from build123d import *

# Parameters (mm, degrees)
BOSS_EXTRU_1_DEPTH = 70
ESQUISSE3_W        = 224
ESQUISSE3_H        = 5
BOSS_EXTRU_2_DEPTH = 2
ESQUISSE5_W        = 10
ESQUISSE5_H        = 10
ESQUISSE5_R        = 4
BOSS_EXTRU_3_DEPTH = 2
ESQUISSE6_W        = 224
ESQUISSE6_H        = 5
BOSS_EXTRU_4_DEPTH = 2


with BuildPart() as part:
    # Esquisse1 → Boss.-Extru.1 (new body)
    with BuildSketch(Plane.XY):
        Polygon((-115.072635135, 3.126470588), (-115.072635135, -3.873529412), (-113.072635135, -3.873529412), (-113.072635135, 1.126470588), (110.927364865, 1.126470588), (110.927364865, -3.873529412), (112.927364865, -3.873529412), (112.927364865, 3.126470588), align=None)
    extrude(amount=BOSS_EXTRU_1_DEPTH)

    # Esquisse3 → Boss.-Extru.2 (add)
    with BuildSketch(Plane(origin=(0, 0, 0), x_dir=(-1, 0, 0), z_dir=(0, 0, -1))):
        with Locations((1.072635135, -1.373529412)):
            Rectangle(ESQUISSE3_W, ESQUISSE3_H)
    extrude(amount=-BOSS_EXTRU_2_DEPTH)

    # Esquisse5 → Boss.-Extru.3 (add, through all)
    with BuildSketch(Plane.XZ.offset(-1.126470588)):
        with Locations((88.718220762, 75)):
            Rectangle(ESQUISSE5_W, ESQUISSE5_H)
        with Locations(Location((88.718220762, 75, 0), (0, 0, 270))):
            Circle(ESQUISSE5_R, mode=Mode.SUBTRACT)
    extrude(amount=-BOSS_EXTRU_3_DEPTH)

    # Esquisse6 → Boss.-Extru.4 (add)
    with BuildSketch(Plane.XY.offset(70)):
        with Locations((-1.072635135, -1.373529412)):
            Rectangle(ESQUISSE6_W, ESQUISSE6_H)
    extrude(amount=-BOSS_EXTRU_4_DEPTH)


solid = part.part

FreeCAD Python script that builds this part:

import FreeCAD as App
import Part
import Sketcher

V = App.Vector
Q = App.Units.Quantity

doc = App.newDocument("Part")
body = doc.addObject("PartDesign::Body", "Body")

# Sketch on XY plane
sketch1 = doc.addObject("Sketcher::SketchObject", "Sketch")
body.addObject(sketch1)
sketch1.AttachmentSupport = (doc.XY_Plane, [""])
sketch1.MapMode = "FlatFace"
sketch1.addGeometry([
    Part.LineSegment(V(-115.1, 3.1, 0), V(-115.1, -3.9, 0)),  # 0
    Part.LineSegment(V(-115.1, -3.9, 0), V(-113.1, -3.9, 0)),  # 1
    Part.LineSegment(V(-113.1, -3.9, 0), V(-113.1, 1.1, 0)),  # 2
    Part.LineSegment(V(-113.1, 1.1, 0), V(110.9, 1.1, 0)),  # 3
    Part.LineSegment(V(110.9, 1.1, 0), V(110.9, -3.9, 0)),  # 4
    Part.LineSegment(V(110.9, -3.9, 0), V(112.9, -3.9, 0)),  # 5
    Part.LineSegment(V(112.9, -3.9, 0), V(112.9, 3.1, 0)),  # 6
    Part.LineSegment(V(112.9, 3.1, 0), V(-115.1, 3.1, 0)),  # 7
], False)
sketch1.addConstraint([
    Sketcher.Constraint("Coincident", 0, 2, 1, 1),
    Sketcher.Constraint("Coincident", 1, 2, 2, 1),
    Sketcher.Constraint("Coincident", 2, 2, 3, 1),
    Sketcher.Constraint("Coincident", 3, 2, 4, 1),
    Sketcher.Constraint("Coincident", 4, 2, 5, 1),
    Sketcher.Constraint("Coincident", 5, 2, 6, 1),
    Sketcher.Constraint("Coincident", 6, 2, 7, 1),
    Sketcher.Constraint("Coincident", 7, 2, 0, 1),
    Sketcher.Constraint("Vertical", 0),
    Sketcher.Constraint("Horizontal", 1),
    Sketcher.Constraint("Vertical", 2),
    Sketcher.Constraint("Horizontal", 3),
    Sketcher.Constraint("Vertical", 4),
    Sketcher.Constraint("Horizontal", 5),
    Sketcher.Constraint("Vertical", 6),
    Sketcher.Constraint("Horizontal", 7),
    Sketcher.Constraint("Horizontal", 1, 2, 4, 2),
    Sketcher.Constraint("Equal", 1, 5),
    Sketcher.Constraint("DistanceX", 1, 1, 1, 2, Q("2 mm")),
    Sketcher.Constraint("DistanceX", 3, 1, 3, 2, Q("224 mm")),
    Sketcher.Constraint("DistanceY", 0, 2, 0, 1, Q("7 mm")),
    Sketcher.Constraint("DistanceY", 2, 1, 2, 2, Q("5 mm")),
    Sketcher.Constraint("DistanceY", 0, 2, -1, 1, Q("3.873529 mm")),
    Sketcher.Constraint("DistanceX", 0, 2, -1, 1, Q("115.072635 mm")),
])
pad1 = doc.addObject("PartDesign::Pad", "Pad")
body.addObject(pad1)
pad1.Profile = sketch1
pad1.Length = 70

# Sketch on XY plane
sketch2 = doc.addObject("Sketcher::SketchObject", "Sketch001")
body.addObject(sketch2)
sketch2.AttachmentSupport = (doc.XY_Plane, [""])
sketch2.MapMode = "FlatFace"
sketch2.addGeometry([
    Part.LineSegment(V(111, 1, 0), V(111, -4, 0)),
    Part.LineSegment(V(111, -4, 0), V(-113, -4, 0)),
    Part.LineSegment(V(-113, -4, 0), V(-113, 1, 0)),
    Part.LineSegment(V(-113, 1, 0), V(111, 1, 0)),
], False)
sketch2.addConstraint([
    Sketcher.Constraint("Coincident", 0, 2, 1, 1),
    Sketcher.Constraint("Coincident", 1, 2, 2, 1),
    Sketcher.Constraint("Coincident", 2, 2, 3, 1),
    Sketcher.Constraint("Coincident", 3, 2, 0, 1),
    Sketcher.Constraint("Vertical", 0),
    Sketcher.Constraint("Horizontal", 1),
    Sketcher.Constraint("Vertical", 2),
    Sketcher.Constraint("Horizontal", 3),
    Sketcher.Constraint("DistanceX", 1, 2, 1, 1, Q("224 mm")),
    Sketcher.Constraint("DistanceY", 0, 2, 0, 1, Q("5 mm")),
    Sketcher.Constraint("DistanceY", 0, 2, -1, 1, Q("3.873529 mm")),
    Sketcher.Constraint("DistanceX", -1, 1, 0, 2, Q("110.927365 mm")),
])
pad2 = doc.addObject("PartDesign::Pad", "Pad001")
body.addObject(pad2)
pad2.Profile = sketch2
pad2.Length = 2

# Sketch on XZ plane
sketch3 = doc.addObject("Sketcher::SketchObject", "Sketch002")
body.addObject(sketch3)
sketch3.AttachmentSupport = (doc.XZ_Plane, [""])
sketch3.MapMode = "FlatFace"
sketch3.AttachmentOffset = App.Placement(V(0, 0, -1.126471), App.Rotation())
sketch3.addGeometry([
    Part.LineSegment(V(83.7, 80, 0), V(83.7, 70, 0)),  # 0
    Part.LineSegment(V(83.7, 70, 0), V(93.7, 70, 0)),  # 1
    Part.LineSegment(V(93.7, 70, 0), V(93.7, 80, 0)),  # 2
    Part.LineSegment(V(93.7, 80, 0), V(83.7, 80, 0)),  # 3
    Part.Circle(V(88.7, 75, 0), V(0, 0, 1), 4),  # 4
], False)
sketch3.addConstraint([
    Sketcher.Constraint("Coincident", 0, 2, 1, 1),
    Sketcher.Constraint("Coincident", 1, 2, 2, 1),
    Sketcher.Constraint("Coincident", 2, 2, 3, 1),
    Sketcher.Constraint("Coincident", 3, 2, 0, 1),
    Sketcher.Constraint("Vertical", 0),
    Sketcher.Constraint("Horizontal", 1),
    Sketcher.Constraint("Vertical", 2),
    Sketcher.Constraint("Horizontal", 3),
    Sketcher.Constraint("Equal", 3, 0),
    Sketcher.Constraint("Diameter", 4, Q("8 mm")),
    Sketcher.Constraint("DistanceX", 1, 1, 1, 2, Q("10 mm")),
    Sketcher.Constraint("DistanceY", -1, 1, 4, 3, Q("75 mm")),
    Sketcher.Constraint("DistanceY", -1, 1, 0, 2, Q("70 mm")),
    Sketcher.Constraint("DistanceX", 0, 2, 4, 3, Q("5 mm")),
    Sketcher.Constraint("DistanceX", -1, 1, 4, 3, Q("88.718221 mm")),
])
pad3 = doc.addObject("PartDesign::Pad", "Pad002")
body.addObject(pad3)
pad3.Profile = sketch3
pad3.Length = 2
pad3.Reversed = True

# Sketch on XY plane
sketch4 = doc.addObject("Sketcher::SketchObject", "Sketch003")
body.addObject(sketch4)
sketch4.AttachmentSupport = (doc.XY_Plane, [""])
sketch4.MapMode = "FlatFace"
sketch4.AttachmentOffset = App.Placement(V(0, 0, 70), App.Rotation())
sketch4.addGeometry([
    Part.LineSegment(V(-113, 1, 0), V(-113, -4, 0)),
    Part.LineSegment(V(-113, -4, 0), V(111, -4, 0)),
    Part.LineSegment(V(111, -4, 0), V(111, 1, 0)),
    Part.LineSegment(V(111, 1, 0), V(-113, 1, 0)),
], False)
sketch4.addConstraint([
    Sketcher.Constraint("Coincident", 0, 2, 1, 1),
    Sketcher.Constraint("Coincident", 1, 2, 2, 1),
    Sketcher.Constraint("Coincident", 2, 2, 3, 1),
    Sketcher.Constraint("Coincident", 3, 2, 0, 1),
    Sketcher.Constraint("Vertical", 0),
    Sketcher.Constraint("Horizontal", 1),
    Sketcher.Constraint("Vertical", 2),
    Sketcher.Constraint("Horizontal", 3),
    Sketcher.Constraint("DistanceX", 1, 1, 1, 2, Q("224 mm")),
    Sketcher.Constraint("DistanceY", 0, 2, 0, 1, Q("5 mm")),
    Sketcher.Constraint("DistanceY", 0, 2, -1, 1, Q("3.873529 mm")),
    Sketcher.Constraint("DistanceX", 0, 2, -1, 1, Q("113.072635 mm")),
])
pad4 = doc.addObject("PartDesign::Pad", "Pad003")
body.addObject(pad4)
pad4.Profile = sketch4
pad4.Length = 2
pad4.Reversed = True

doc.recompute()
